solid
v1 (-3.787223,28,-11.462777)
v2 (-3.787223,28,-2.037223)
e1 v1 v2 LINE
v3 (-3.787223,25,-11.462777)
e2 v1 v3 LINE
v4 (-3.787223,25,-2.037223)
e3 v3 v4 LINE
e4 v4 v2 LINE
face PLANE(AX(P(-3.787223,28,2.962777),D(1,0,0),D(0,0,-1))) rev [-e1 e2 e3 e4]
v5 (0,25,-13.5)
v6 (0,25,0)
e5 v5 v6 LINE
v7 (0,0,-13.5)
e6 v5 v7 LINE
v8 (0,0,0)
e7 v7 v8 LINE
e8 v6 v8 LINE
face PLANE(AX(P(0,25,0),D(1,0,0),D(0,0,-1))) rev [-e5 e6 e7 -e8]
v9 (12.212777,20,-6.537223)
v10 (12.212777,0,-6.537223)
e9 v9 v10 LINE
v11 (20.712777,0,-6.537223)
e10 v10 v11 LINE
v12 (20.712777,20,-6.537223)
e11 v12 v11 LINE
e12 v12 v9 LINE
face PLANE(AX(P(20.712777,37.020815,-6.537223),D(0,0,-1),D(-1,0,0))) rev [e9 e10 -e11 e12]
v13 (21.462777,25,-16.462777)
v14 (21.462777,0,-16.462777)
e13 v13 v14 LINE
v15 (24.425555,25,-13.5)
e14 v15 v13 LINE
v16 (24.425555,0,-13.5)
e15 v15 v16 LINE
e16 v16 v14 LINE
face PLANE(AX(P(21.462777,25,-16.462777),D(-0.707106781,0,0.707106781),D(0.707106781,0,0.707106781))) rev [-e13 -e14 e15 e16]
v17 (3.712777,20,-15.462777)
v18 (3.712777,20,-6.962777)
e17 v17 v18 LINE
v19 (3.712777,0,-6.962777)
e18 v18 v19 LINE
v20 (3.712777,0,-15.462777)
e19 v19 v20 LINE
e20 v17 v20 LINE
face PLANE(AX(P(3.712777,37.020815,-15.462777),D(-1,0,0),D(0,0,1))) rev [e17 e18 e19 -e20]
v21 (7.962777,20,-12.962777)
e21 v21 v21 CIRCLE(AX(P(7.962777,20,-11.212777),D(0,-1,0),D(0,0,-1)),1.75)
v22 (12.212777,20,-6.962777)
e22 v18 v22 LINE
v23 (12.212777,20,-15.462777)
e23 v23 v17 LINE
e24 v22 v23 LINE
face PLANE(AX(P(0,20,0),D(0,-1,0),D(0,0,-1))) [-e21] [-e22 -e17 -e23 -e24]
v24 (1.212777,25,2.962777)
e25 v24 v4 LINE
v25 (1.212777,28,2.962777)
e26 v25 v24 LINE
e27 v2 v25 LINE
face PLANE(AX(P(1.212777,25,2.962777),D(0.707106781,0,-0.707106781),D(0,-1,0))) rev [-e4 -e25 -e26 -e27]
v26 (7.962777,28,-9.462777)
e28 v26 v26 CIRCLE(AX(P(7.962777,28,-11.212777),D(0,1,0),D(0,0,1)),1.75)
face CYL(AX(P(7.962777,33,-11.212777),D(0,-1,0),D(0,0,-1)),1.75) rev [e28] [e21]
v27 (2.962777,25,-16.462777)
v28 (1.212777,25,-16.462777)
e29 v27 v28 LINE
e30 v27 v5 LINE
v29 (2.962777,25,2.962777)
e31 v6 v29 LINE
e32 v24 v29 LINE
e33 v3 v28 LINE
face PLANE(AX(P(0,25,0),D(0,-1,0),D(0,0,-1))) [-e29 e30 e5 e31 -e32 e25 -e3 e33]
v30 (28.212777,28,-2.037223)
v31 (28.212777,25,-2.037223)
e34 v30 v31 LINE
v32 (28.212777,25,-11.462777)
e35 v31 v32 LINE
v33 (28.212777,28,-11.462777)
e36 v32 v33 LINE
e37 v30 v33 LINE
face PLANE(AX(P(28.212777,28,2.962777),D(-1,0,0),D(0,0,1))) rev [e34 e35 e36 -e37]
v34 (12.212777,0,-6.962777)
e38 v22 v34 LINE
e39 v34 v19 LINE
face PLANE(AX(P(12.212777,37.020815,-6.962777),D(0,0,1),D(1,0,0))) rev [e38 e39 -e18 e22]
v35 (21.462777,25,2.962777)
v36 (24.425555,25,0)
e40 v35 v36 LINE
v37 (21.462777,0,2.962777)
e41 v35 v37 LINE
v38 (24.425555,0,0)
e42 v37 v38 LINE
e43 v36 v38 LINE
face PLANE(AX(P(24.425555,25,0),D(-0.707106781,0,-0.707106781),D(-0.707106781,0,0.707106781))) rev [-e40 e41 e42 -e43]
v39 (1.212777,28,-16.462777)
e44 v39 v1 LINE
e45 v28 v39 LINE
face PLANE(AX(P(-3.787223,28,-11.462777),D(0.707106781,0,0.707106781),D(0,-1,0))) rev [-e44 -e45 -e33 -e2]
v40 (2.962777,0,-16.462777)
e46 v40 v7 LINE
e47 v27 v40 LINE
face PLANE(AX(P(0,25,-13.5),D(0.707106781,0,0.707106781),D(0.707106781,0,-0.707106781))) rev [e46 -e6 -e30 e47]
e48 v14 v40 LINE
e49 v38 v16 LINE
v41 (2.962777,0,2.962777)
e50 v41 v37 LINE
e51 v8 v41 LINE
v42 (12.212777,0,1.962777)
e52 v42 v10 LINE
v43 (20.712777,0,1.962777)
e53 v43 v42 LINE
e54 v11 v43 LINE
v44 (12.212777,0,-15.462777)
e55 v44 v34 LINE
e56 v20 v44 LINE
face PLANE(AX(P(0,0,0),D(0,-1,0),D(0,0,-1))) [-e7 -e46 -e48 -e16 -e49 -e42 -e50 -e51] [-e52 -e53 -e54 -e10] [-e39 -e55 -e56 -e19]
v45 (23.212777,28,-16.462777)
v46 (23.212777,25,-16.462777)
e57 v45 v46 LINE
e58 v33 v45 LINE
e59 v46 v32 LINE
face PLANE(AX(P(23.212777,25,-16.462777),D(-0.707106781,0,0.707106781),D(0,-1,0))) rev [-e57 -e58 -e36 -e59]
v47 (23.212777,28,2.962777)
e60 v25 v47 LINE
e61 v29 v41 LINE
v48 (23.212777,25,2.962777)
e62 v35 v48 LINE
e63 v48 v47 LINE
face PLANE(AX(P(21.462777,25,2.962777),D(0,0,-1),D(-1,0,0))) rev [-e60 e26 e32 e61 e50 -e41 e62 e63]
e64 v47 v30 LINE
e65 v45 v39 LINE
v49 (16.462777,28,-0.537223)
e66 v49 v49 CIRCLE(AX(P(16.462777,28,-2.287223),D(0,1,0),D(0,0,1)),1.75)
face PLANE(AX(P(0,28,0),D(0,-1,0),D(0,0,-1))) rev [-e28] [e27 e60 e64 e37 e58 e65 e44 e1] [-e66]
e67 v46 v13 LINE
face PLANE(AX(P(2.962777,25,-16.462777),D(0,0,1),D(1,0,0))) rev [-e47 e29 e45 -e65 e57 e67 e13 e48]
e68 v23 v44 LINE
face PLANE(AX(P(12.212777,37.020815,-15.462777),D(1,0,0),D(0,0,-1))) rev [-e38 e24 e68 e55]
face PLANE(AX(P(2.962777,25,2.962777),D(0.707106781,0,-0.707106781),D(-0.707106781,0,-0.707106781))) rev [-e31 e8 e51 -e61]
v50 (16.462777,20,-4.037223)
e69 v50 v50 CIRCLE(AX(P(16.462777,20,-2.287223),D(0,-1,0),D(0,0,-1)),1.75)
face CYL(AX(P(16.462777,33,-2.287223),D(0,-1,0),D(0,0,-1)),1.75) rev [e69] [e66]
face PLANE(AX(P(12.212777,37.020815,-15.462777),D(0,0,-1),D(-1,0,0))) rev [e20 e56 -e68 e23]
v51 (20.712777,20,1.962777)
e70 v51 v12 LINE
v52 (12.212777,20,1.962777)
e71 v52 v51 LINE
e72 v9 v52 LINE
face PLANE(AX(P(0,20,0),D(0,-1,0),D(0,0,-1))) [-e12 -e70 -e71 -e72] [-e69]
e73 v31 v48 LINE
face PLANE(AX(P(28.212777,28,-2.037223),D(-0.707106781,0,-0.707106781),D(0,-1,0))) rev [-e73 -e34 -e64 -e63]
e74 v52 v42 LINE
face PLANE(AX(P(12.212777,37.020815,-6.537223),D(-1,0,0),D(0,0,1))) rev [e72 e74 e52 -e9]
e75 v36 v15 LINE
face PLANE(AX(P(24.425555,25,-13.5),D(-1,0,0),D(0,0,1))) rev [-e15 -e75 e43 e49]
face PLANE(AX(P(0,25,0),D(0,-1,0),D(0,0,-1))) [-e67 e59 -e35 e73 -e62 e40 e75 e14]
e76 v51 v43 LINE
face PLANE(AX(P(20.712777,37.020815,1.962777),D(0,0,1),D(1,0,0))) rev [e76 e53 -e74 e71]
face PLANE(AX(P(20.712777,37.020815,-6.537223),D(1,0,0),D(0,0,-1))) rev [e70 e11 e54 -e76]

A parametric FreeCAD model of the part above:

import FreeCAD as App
import Part
import Sketcher
from FreeCAD import Vector


def edges_at(feature, points):
    """Names of the edges that pass closest to the given points."""
    edges = feature.Shape.Edges
    near = lambda p: min(range(len(edges)), key=lambda i: edges[i].distToShape(Part.Vertex(*p))[0])
    return sorted({f"Edge{near(p) + 1}" for p in points})


def add_polygon(sketch, points):
    """Adds a closed chain of lines whose ends are joined by coincident constraints."""
    first, n = sketch.GeometryCount, len(points)
    for a, b in zip(points, points[1:] + points[:1]):
        sketch.addGeometry(Part.LineSegment(App.Vector(*a, 0), App.Vector(*b, 0)), False)
    for i in range(n):
        sketch.addConstraint(Sketcher.Constraint("Coincident", first + i, 2, first + (i + 1) % n, 1))

doc = App.newDocument("Part")
body = doc.addObject("PartDesign::Body", "Body")

# Sketch on XZ plane
sketch1 = doc.addObject("Sketcher::SketchObject", "Sketch")
body.addObject(sketch1)
sketch1.AttachmentSupport = (doc.XZ_Plane, [""])
sketch1.MapMode = "FlatFace"
add_polygon(sketch1, [(0, -13.5), (0, 0), (3, 3), (21.5, 3), (24.4, 0), (24.4, -13.5), (21.5, -16.5), (3, -16.5)])  # lines 0-7
sketch1.addConstraint([
    Sketcher.Constraint("Vertical", 0),
    Sketcher.Constraint("Horizontal", 2),
    Sketcher.Constraint("Vertical", 4),
    Sketcher.Constraint("Horizontal", 6),
    Sketcher.Constraint("Coincident", 0, 2, -1, 1),
    Sketcher.Constraint("PointOnObject", 3, 2, -1),
    Sketcher.Constraint("Perpendicular", 1, 3),
    Sketcher.Constraint("Perpendicular", 3, 5),
    Sketcher.Constraint("Perpendicular", 5, 7),
    Sketcher.Constraint("Horizontal", 4, 2, 7, 2),
    Sketcher.Constraint("Vertical", 2, 2, 5, 2),
    Sketcher.Constraint("Vertical", 1, 2, 6, 2),
    Sketcher.Constraint("DistanceX", 2, 1, 2, 2, 18.5),
    Sketcher.Constraint("DistanceY", 0, 1, 0, 2, 13.5),
    Sketcher.Constraint("Distance", 1, 4.19),
])
pad1 = doc.addObject("PartDesign::Pad", "Pad")
body.addObject(pad1)
pad1.Profile = sketch1
pad1.Length = 25
pad1.Reversed = True

# Sketch on XZ plane
sketch2 = doc.addObject("Sketcher::SketchObject", "Sketch001")
body.addObject(sketch2)
sketch2.AttachmentSupport = (doc.XZ_Plane, [""])
sketch2.MapMode = "FlatFace"
add_polygon(sketch2, [(12, -15), (12, -7), (4, -7), (4, -15)])  # lines 0-3
add_polygon(sketch2, [(21, -7), (21, 2), (12, 2), (12, -7)])  # lines 4-7
sketch2.addConstraint([
    Sketcher.Constraint("Vertical", 0),
    Sketcher.Constraint("Horizontal", 1),
    Sketcher.Constraint("Vertical", 2),
    Sketcher.Constraint("Horizontal", 3),
    Sketcher.Constraint("Vertical", 4),
    Sketcher.Constraint("Horizontal", 5),
    Sketcher.Constraint("Vertical", 6),
    Sketcher.Constraint("Horizontal", 7),
    Sketcher.Constraint("Vertical", 3, 2, 5, 2),
    Sketcher.Constraint("Equal", 3, 5),
    Sketcher.Constraint("Equal", 7, 0),
    Sketcher.Constraint("Equal", 2, 4),
    Sketcher.Constraint("DistanceX", 1, 2, 1, 1, 8.5),
    Sketcher.Constraint("DistanceX", -1, 1, 0, 2, 12.212777),
    Sketcher.Constraint("DistanceY", 0, 2, -1, 1, 6.962777),
    Sketcher.Constraint("DistanceY", -1, 1, 4, 2, 1.962777),
])
pocket1 = doc.addObject("PartDesign::Pocket", "Pocket")
body.addObject(pocket1)
pocket1.Profile = sketch2
pocket1.Length = 20

# Sketch on XZ plane
sketch3 = doc.addObject("Sketcher::SketchObject", "Sketch002")
body.addObject(sketch3)
sketch3.AttachmentSupport = (doc.XZ_Plane, [""])
sketch3.MapMode = "FlatFace"
sketch3.AttachmentOffset = App.Placement(Vector(0, 0, -20), App.Rotation())
sketch3.addGeometry(Part.Circle(Vector(8, -11.2, 0), Vector(0, 0, 1), 1.8), False)
sketch3.addConstraint([
    Sketcher.Constraint("Diameter", 0, 3.5),
    Sketcher.Constraint("DistanceX", -1, 1, 0, 3, 7.962777),
    Sketcher.Constraint("DistanceY", 0, 3, -1, 1, 11.212777),
])
pocket2 = doc.addObject("PartDesign::Pocket", "Pocket001")
body.addObject(pocket2)
pocket2.Profile = sketch3
pocket2.Length = 13

# Sketch on XZ plane
sketch4 = doc.addObject("Sketcher::SketchObject", "Sketch003")
body.addObject(sketch4)
sketch4.AttachmentSupport = (doc.XZ_Plane, [""])
sketch4.MapMode = "FlatFace"
sketch4.AttachmentOffset = App.Placement(Vector(0, 0, -20), App.Rotation())
sketch4.addGeometry(Part.Circle(Vector(16.5, -2.3, 0), Vector(0, 0, 1), 1.8), False)
sketch4.addConstraint([
    Sketcher.Constraint("Diameter", 0, 3.5),
    Sketcher.Constraint("DistanceX", -1, 1, 0, 3, 16.462777),
    Sketcher.Constraint("DistanceY", 0, 3, -1, 1, 2.287223),
])
pocket3 = doc.addObject("PartDesign::Pocket", "Pocket002")
body.addObject(pocket3)
pocket3.Profile = sketch4
pocket3.Length = 13

# Sketch on XZ plane
sketch5 = doc.addObject("Sketcher::SketchObject", "Sketch004")
body.addObject(sketch5)
sketch5.AttachmentSupport = (doc.XZ_Plane, [""])
sketch5.MapMode = "FlatFace"
sketch5.AttachmentOffset = App.Placement(Vector(0, 0, -25), App.Rotation())
add_polygon(sketch5, [(-3.8, -16.5), (-3.8, 3), (28.2, 3), (28.2, -16.5)])  # lines 0-3
sketch5.addGeometry(Part.Circle(Vector(16.5, -2.3, 0), Vector(0, 0, 1), 1.8), False)  # 4
sketch5.addGeometry(Part.Circle(Vector(8, -11.2, 0), Vector(0, 0, 1), 1.8), False)  # 5
sketch5.addConstraint([
    Sketcher.Constraint("Vertical", 0),
    Sketcher.Constraint("Horizontal", 1),
    Sketcher.Constraint("Vertical", 2),
    Sketcher.Constraint("Horizontal", 3),
    Sketcher.Constraint("Equal", 4, 5),
    Sketcher.Constraint("Diameter", 4, 3.5),
    Sketcher.Constraint("DistanceX", 1, 1, 1, 2, 32.0),
    Sketcher.Constraint("DistanceX", 5, 3, 4, 3, 8.5),
    Sketcher.Constraint("DistanceX", 0, 2, 5, 3, 11.75),
    Sketcher.Constraint("DistanceY", 4, 3, 0, 2, 5.25),
    Sketcher.Constraint("DistanceY", 2, 2, 5, 3, 5.25),
    Sketcher.Constraint("DistanceY", 0, 1, 0, 2, 19.425555),
    Sketcher.Constraint("DistanceX", -1, 1, 4, 3, 16.462777),
    Sketcher.Constraint("DistanceY", 4, 3, -1, 1, 2.287223),
])
pad2 = doc.addObject("PartDesign::Pad", "Pad001")
body.addObject(pad2)
pad2.Profile = sketch5
pad2.Length = 3
pad2.Reversed = True
doc.recompute()

chamfer = doc.addObject("PartDesign::Chamfer", "Chamfer")
body.addObject(chamfer)
chamfer.Base = (pad2, edges_at(pad2, [
    (28.213, 26.5, 2.963),
    (28.213, 26.5, -16.463),
    (-3.787, 26.5, -16.463),
    (-3.787, 26.5, 2.963),
]))
chamfer.Size = 5

doc.recompute()
